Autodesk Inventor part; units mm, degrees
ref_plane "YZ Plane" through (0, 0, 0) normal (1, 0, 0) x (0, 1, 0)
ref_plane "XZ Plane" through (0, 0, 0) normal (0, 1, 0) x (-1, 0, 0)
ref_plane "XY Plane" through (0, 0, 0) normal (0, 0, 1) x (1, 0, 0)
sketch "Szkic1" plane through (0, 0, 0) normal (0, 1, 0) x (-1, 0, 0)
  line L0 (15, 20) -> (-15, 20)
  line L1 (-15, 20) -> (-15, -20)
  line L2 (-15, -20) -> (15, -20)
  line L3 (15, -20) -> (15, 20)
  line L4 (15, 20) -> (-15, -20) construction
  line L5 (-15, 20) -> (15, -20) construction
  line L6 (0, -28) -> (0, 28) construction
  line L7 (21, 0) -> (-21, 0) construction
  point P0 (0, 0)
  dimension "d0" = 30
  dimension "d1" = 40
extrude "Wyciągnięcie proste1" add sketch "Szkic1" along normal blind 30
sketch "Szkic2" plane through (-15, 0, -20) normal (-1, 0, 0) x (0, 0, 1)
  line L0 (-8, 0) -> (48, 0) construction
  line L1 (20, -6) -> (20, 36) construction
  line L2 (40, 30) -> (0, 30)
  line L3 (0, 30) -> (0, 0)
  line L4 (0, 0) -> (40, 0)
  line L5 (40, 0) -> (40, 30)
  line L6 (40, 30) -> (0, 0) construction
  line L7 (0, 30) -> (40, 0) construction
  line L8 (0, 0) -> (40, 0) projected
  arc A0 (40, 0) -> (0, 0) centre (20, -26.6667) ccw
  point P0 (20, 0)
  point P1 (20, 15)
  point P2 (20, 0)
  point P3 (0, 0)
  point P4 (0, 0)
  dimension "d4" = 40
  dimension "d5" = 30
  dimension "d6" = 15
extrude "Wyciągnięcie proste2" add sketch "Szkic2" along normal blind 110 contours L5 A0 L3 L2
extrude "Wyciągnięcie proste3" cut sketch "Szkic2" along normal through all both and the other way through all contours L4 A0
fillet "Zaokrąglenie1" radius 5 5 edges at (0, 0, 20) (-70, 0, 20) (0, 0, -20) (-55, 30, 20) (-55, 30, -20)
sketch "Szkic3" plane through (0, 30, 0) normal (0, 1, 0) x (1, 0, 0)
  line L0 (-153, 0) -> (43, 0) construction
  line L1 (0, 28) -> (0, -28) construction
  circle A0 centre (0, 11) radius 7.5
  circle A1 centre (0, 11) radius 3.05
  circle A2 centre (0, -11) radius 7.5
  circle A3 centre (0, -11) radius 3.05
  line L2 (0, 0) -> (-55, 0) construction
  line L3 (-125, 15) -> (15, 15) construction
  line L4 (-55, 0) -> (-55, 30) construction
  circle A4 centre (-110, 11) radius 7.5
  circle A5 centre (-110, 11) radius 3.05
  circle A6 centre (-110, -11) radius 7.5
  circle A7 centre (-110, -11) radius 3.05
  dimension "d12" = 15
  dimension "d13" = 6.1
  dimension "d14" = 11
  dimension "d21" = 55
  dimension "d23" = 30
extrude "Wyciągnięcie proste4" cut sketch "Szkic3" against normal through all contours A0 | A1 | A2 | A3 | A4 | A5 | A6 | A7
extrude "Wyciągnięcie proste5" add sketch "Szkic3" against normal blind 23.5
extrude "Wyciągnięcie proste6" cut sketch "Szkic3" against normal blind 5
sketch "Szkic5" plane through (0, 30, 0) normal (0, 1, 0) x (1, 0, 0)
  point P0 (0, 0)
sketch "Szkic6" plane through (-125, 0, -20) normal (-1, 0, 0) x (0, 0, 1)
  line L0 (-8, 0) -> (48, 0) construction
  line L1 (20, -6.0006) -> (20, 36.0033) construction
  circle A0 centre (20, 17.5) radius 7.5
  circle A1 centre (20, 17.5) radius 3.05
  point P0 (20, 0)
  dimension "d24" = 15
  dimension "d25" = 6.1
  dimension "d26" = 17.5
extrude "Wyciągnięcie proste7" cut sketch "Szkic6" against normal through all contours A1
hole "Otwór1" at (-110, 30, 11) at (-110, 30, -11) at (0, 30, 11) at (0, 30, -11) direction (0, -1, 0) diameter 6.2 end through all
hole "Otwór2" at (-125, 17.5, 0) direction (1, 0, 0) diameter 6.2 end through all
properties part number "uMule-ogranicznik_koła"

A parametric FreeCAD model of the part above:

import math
import FreeCAD as App
import Part
import Sketcher

V = App.Vector
Q = App.Units.Quantity


def edges_at(feature, points):
    """Names of the edges that pass closest to the given points."""
    edges = feature.Shape.Edges
    near = lambda p: min(range(len(edges)), key=lambda i: edges[i].distToShape(Part.Vertex(*p))[0])
    return sorted({f"Edge{near(p) + 1}" for p in points})


def add_polygon(sketch, points):
    """Adds a closed chain of lines whose ends are joined by coincident constraints."""
    first, n = sketch.GeometryCount, len(points)
    for a, b in zip(points, points[1:] + points[:1]):
        sketch.addGeometry(Part.LineSegment(App.Vector(*a, 0), App.Vector(*b, 0)), False)
    for i in range(n):
        sketch.addConstraint(Sketcher.Constraint("Coincident", first + i, 2, first + (i + 1) % n, 1))

doc = App.newDocument("Part")
params = doc.addObject("Spreadsheet::Sheet", "Params")
for row, (alias, value) in enumerate([
    ("sketch1_width", "30 mm"),
    ("sketch1_height", "40 mm"),
    ("pad1_length", "30 mm"),
    ("sketch2_width", "30 mm"),
    ("sketch2_height", "40 mm"),
    ("pad2_length", "110 mm"),
    ("sketch3_height", "40 mm"),
    ("fillet_radius", "5 mm"),
    ("sketch4_diameter", "15 mm"),
    ("sketch5_diameter", "15 mm"),
    ("sketch5_diameter2", "6.1 mm"),
    ("pad3_length", "23.5 mm"),
    ("sketch6_diameter", "15 mm"),
    ("sketch6_diameter2", "6.1 mm"),
    ("pocket3_length", "5 mm"),
    ("sketch7_diameter", "6.1 mm"),
    ("sketch8_diameter", "6.2 mm"),
    ("hole_diameter", "6.2 mm"),
    ("sketch9_diameter", "6.2 mm"),
    ("hole2_diameter", "6.2 mm"),
], start=1):
    params.set(f"A{row}", alias)
    params.set(f"B{row}", "=" + value)
    params.setAlias(f"B{row}", alias)

body = doc.addObject("PartDesign::Body", "Body")

sketch1 = body.newObject("Sketcher::SketchObject", "Sketch")
sketch1.AttachmentSupport = (doc.getObject("XZ_Plane"), [""])
sketch1.MapMode = "FlatFace"
add_polygon(sketch1, [(-15, -20), (-15, 20), (15, 20), (15, -20)])
sketch1.addConstraint(Sketcher.Constraint("Vertical", 0))
sketch1.addConstraint(Sketcher.Constraint("Horizontal", 1))
sketch1.addConstraint(Sketcher.Constraint("Vertical", 2))
sketch1.addConstraint(Sketcher.Constraint("Horizontal", 3))
sketch1.addConstraint(Sketcher.Constraint("Symmetric", 0, 2, 2, 2, -1, 1))
sketch1.addConstraint(Sketcher.Constraint("DistanceX", 1, 1, 1, 2, Q("30 mm")))
sketch1.addConstraint(Sketcher.Constraint("DistanceY", 0, 1, 0, 2, Q("40 mm")))
sketch1.setExpression("Constraints[9]", "Params.sketch1_width")
sketch1.setExpression("Constraints[10]", "Params.sketch1_height")
pad1 = body.newObject("PartDesign::Pad", "Pad")
pad1.Profile = sketch1
pad1.setExpression("Length", "Params.pad1_length")
pad1.Reversed = True

sketch2 = body.newObject("Sketcher::SketchObject", "Sketch001")
sketch2.AttachmentSupport = (doc.getObject("YZ_Plane"), [""])
sketch2.MapMode = "FlatFace"
sketch2.AttachmentOffset = App.Placement(V(0, 0, -15), App.Rotation())
sketch2.addGeometry(Part.LineSegment(V(0, 20, 0), V(30, 20, 0)), False)
sketch2.addGeometry(Part.LineSegment(V(30, 20, 0), V(30, -20, 0)), False)
sketch2.addGeometry(Part.LineSegment(V(30, -20, 0), V(0, -20, 0)), False)
sketch2.addGeometry(Part.ArcOfCircle(Part.Circle(V(-27, 0, 0), V(0, 0, 1), 33), math.radians(-37), math.radians(37)), False)
sketch2.addConstraint(Sketcher.Constraint("Coincident", 0, 2, 1, 1))
sketch2.addConstraint(Sketcher.Constraint("Coincident", 1, 2, 2, 1))
sketch2.addConstraint(Sketcher.Constraint("Coincident", 2, 2, 3, 1))
sketch2.addConstraint(Sketcher.Constraint("Coincident", 3, 2, 0, 1))
sketch2.addConstraint(Sketcher.Constraint("Horizontal", 0))
sketch2.addConstraint(Sketcher.Constraint("Vertical", 1))
sketch2.addConstraint(Sketcher.Constraint("Horizontal", 2))
sketch2.addConstraint(Sketcher.Constraint("Symmetric", 2, 2, 3, 2, -1, 1))
sketch2.addConstraint(Sketcher.Constraint("PointOnObject", 3, 3, -1))
sketch2.addConstraint(Sketcher.Constraint("DistanceX", 0, 1, 0, 2, Q("30 mm")))
sketch2.addConstraint(Sketcher.Constraint("DistanceY", 1, 2, 1, 1, Q("40 mm")))
sketch2.addConstraint(Sketcher.Constraint("Radius", 3, Q("33.3334 mm")))
sketch2.setExpression("Constraints[9]", "Params.sketch2_width")
sketch2.setExpression("Constraints[10]", "Params.sketch2_height")
pad2 = body.newObject("PartDesign::Pad", "Pad001")
pad2.Profile = sketch2
pad2.setExpression("Length", "Params.pad2_length")
pad2.Reversed = True

sketch3 = body.newObject("Sketcher::SketchObject", "Sketch002")
sketch3.AttachmentSupport = (doc.getObject("YZ_Plane"), [""])
sketch3.MapMode = "FlatFace"
sketch3.AttachmentOffset = App.Placement(V(0, 0, -15), App.Rotation())
sketch3.addGeometry(Part.LineSegment(V(0, -20, 0), V(0, 20, 0)), False)
sketch3.addGeometry(Part.ArcOfCircle(Part.Circle(V(-27, 0, 0), V(0, 0, 1), 33), math.radians(-37), math.radians(37)), False)
sketch3.addConstraint(Sketcher.Constraint("Coincident", 0, 1, 1, 1))
sketch3.addConstraint(Sketcher.Constraint("Coincident", 1, 2, 0, 2))
sketch3.addConstraint(Sketcher.Constraint("Vertical", 0))
sketch3.addConstraint(Sketcher.Constraint("Symmetric", 0, 1, 1, 2, -1, 1))
sketch3.addConstraint(Sketcher.Constraint("DistanceY", 0, 1, 0, 2, Q("40 mm")))
sketch3.addConstraint(Sketcher.Constraint("Radius", 1, Q("33.3334 mm")))
sketch3.setExpression("Constraints[4]", "Params.sketch3_height")
pocket1 = body.newObject("PartDesign::Pocket", "Pocket")
pocket1.Profile = sketch3
pocket1.Type = "ThroughAll"
pocket1.Midplane = True
doc.recompute()

fillet = body.newObject("PartDesign::Fillet", "Fillet")
fillet.Base = (pocket1, edges_at(pocket1, [
    (0, 0, 20),
    (-70, 0, 20),
    (0, 0, -20),
    (-55, 30, 20),
    (-55, 30, -20),
]))
fillet.setExpression("Radius", "Params.fillet_radius")

sketch4 = body.newObject("Sketcher::SketchObject", "Sketch003")
sketch4.AttachmentSupport = (doc.getObject("XZ_Plane"), [""])
sketch4.MapMode = "FlatFace"
sketch4.AttachmentOffset = App.Placement(V(0, 0, -30), App.Rotation())
sketch4.addGeometry(Part.Circle(V(0, -11, 0), V(0, 0, 1), 8), False)
sketch4.addGeometry(Part.Circle(V(0, 11, 0), V(0, 0, 1), 8), False)
sketch4.addGeometry(Part.Circle(V(-110, -11, 0), V(0, 0, 1), 8), False)
sketch4.addGeometry(Part.Circle(V(-110, 11, 0), V(0, 0, 1), 8), False)
sketch4.addConstraint(Sketcher.Constraint("Equal", 0, 1))
sketch4.addConstraint(Sketcher.Constraint("Equal", 1, 2))
sketch4.addConstraint(Sketcher.Constraint("Equal", 2, 3))
sketch4.addConstraint(Sketcher.Constraint("Symmetric", 0, 3, 1, 3, -1, 1))
sketch4.addConstraint(Sketcher.Constraint("Symmetric", 2, 3, 3, 3, -1))
sketch4.addConstraint(Sketcher.Constraint("PointOnObject", 0, 3, -2))
sketch4.addConstraint(Sketcher.Constraint("Horizontal", 0, 3, 2, 3))
sketch4.addConstraint(Sketcher.Constraint("Diameter", 0, Q("15 mm")))
sketch4.addConstraint(Sketcher.Constraint("DistanceY", 0, 3, -1, 1, Q("11 mm")))
sketch4.addConstraint(Sketcher.Constraint("DistanceX", 2, 3, -1, 1, Q("110 mm")))
sketch4.setExpression("Constraints[7]", "Params.sketch4_diameter")
pocket2 = body.newObject("PartDesign::Pocket", "Pocket001")
pocket2.Profile = sketch4
pocket2.Type = "ThroughAll"
pocket2.Reversed = True

sketch5 = body.newObject("Sketcher::SketchObject", "Sketch004")
sketch5.AttachmentSupport = (doc.getObject("XZ_Plane"), [""])
sketch5.MapMode = "FlatFace"
sketch5.AttachmentOffset = App.Placement(V(0, 0, -30), App.Rotation())
sketch5.addGeometry(Part.Circle(V(0, -11, 0), V(0, 0, 1), 7.5), False)
sketch5.addGeometry(Part.Circle(V(0, -11, 0), V(0, 0, 1), 3), False)
sketch5.addGeometry(Part.Circle(V(0, 11, 0), V(0, 0, 1), 7.5), False)
sketch5.addGeometry(Part.Circle(V(0, 11, 0), V(0, 0, 1), 3), False)
sketch5.addGeometry(Part.Circle(V(-110, -11, 0), V(0, 0, 1), 7.5), False)
sketch5.addGeometry(Part.Circle(V(-110, -11, 0), V(0, 0, 1), 3), False)
sketch5.addGeometry(Part.Circle(V(-110, 11, 0), V(0, 0, 1), 7.5), False)
sketch5.addGeometry(Part.Circle(V(-110, 11, 0), V(0, 0, 1), 3), False)
sketch5.addConstraint(Sketcher.Constraint("Coincident", 1, 3, 0, 3))
sketch5.addConstraint(Sketcher.Constraint("Coincident", 3, 3, 2, 3))
sketch5.addConstraint(Sketcher.Constraint("Coincident", 5, 3, 4, 3))
sketch5.addConstraint(Sketcher.Constraint("Coincident", 7, 3, 6, 3))
sketch5.addConstraint(Sketcher.Constraint("Equal", 0, 2))
sketch5.addConstraint(Sketcher.Constraint("Equal", 1, 3))
sketch5.addConstraint(Sketcher.Constraint("Equal", 2, 4))
sketch5.addConstraint(Sketcher.Constraint("Equal", 3, 5))
sketch5.addConstraint(Sketcher.Constraint("Equal", 4, 6))
sketch5.addConstraint(Sketcher.Constraint("Equal", 5, 7))
sketch5.addConstraint(Sketcher.Constraint("Symmetric", 0, 3, 2, 3, -1, 1))
sketch5.addConstraint(Sketcher.Constraint("Symmetric", 4, 3, 6, 3, -1))
sketch5.addConstraint(Sketcher.Constraint("PointOnObject", 0, 3, -2))
sketch5.addConstraint(Sketcher.Constraint("Horizontal", 1, 3, 4, 3))
sketch5.addConstraint(Sketcher.Constraint("Diameter", 0, Q("15 mm")))
sketch5.addConstraint(Sketcher.Constraint("Diameter", 1, Q("6.1 mm")))
sketch5.addConstraint(Sketcher.Constraint("DistanceY", 0, 3, -1, 1, Q("11 mm")))
sketch5.addConstraint(Sketcher.Constraint("DistanceX", 4, 3, -1, 1, Q("110 mm")))
sketch5.setExpression("Constraints[14]", "Params.sketch5_diameter")
sketch5.setExpression("Constraints[15]", "Params.sketch5_diameter2")
pad3 = body.newObject("PartDesign::Pad", "Pad002")
pad3.Profile = sketch5
pad3.setExpression("Length", "Params.pad3_length")

sketch6 = body.newObject("Sketcher::SketchObject", "Sketch005")
sketch6.AttachmentSupport = (doc.getObject("XZ_Plane"), [""])
sketch6.MapMode = "FlatFace"
sketch6.AttachmentOffset = App.Placement(V(0, 0, -30), App.Rotation())
sketch6.addGeometry(Part.Circle(V(0, -11, 0), V(0, 0, 1), 7.5), False)
sketch6.addGeometry(Part.Circle(V(0, -11, 0), V(0, 0, 1), 3), False)
sketch6.addGeometry(Part.Circle(V(0, 11, 0), V(0, 0, 1), 7.5), False)
sketch6.addGeometry(Part.Circle(V(0, 11, 0), V(0, 0, 1), 3), False)
sketch6.addGeometry(Part.Circle(V(-110, -11, 0), V(0, 0, 1), 7.5), False)
sketch6.addGeometry(Part.Circle(V(-110, -11, 0), V(0, 0, 1), 3), False)
sketch6.addGeometry(Part.Circle(V(-110, 11, 0), V(0, 0, 1), 7.5), False)
sketch6.addGeometry(Part.Circle(V(-110, 11, 0), V(0, 0, 1), 3), False)
sketch6.addConstraint(Sketcher.Constraint("Coincident", 1, 3, 0, 3))
sketch6.addConstraint(Sketcher.Constraint("Coincident", 3, 3, 2, 3))
sketch6.addConstraint(Sketcher.Constraint("Coincident", 5, 3, 4, 3))
sketch6.addConstraint(Sketcher.Constraint("Coincident", 7, 3, 6, 3))
sketch6.addConstraint(Sketcher.Constraint("Equal", 0, 2))
sketch6.addConstraint(Sketcher.Constraint("Equal", 1, 3))
sketch6.addConstraint(Sketcher.Constraint("Equal", 2, 4))
sketch6.addConstraint(Sketcher.Constraint("Equal", 3, 5))
sketch6.addConstraint(Sketcher.Constraint("Equal", 4, 6))
sketch6.addConstraint(Sketcher.Constraint("Equal", 5, 7))
sketch6.addConstraint(Sketcher.Constraint("Symmetric", 0, 3, 2, 3, -1, 1))
sketch6.addConstraint(Sketcher.Constraint("Symmetric", 4, 3, 6, 3, -1))
sketch6.addConstraint(Sketcher.Constraint("PointOnObject", 0, 3, -2))
sketch6.addConstraint(Sketcher.Constraint("Horizontal", 1, 3, 4, 3))
sketch6.addConstraint(Sketcher.Constraint("Diameter", 0, Q("15 mm")))
sketch6.addConstraint(Sketcher.Constraint("Diameter", 1, Q("6.1 mm")))
sketch6.addConstraint(Sketcher.Constraint("DistanceY", 0, 3, -1, 1, Q("11 mm")))
sketch6.addConstraint(Sketcher.Constraint("DistanceX", 4, 3, -1, 1, Q("110 mm")))
sketch6.setExpression("Constraints[14]", "Params.sketch6_diameter")
sketch6.setExpression("Constraints[15]", "Params.sketch6_diameter2")
pocket3 = body.newObject("PartDesign::Pocket", "Pocket002")
pocket3.Profile = sketch6
pocket3.setExpression("Length", "Params.pocket3_length")
pocket3.Reversed = True

sketch7 = body.newObject("Sketcher::SketchObject", "Sketch006")
sketch7.AttachmentSupport = (doc.getObject("YZ_Plane"), [""])
sketch7.MapMode = "FlatFace"
sketch7.AttachmentOffset = App.Placement(V(0, 0, -125), App.Rotation())
sketch7.addGeometry(Part.Circle(V(17.5, 0, 0), V(0, 0, 1), 3), False)
sketch7.addConstraint(Sketcher.Constraint("PointOnObject", 0, 3, -1))
sketch7.addConstraint(Sketcher.Constraint("Diameter", 0, Q("6.1 mm")))
sketch7.addConstraint(Sketcher.Constraint("DistanceX", -1, 1, 0, 3, Q("17.5 mm")))
sketch7.setExpression("Constraints[1]", "Params.sketch7_diameter")
pocket4 = body.newObject("PartDesign::Pocket", "Pocket003")
pocket4.Profile = sketch7
pocket4.Type = "ThroughAll"
pocket4.Reversed = True

sketch8 = body.newObject("Sketcher::SketchObject", "Sketch007")
sketch8.AttachmentSupport = (doc.getObject("XZ_Plane"), [""])
sketch8.MapMode = "FlatFace"
sketch8.AttachmentOffset = App.Placement(V(0, 0, -30), App.Rotation())
sketch8.addGeometry(Part.Circle(V(-110, 11, 0), V(0, 0, 1), 3.1), False)
sketch8.addGeometry(Part.Circle(V(-110, -11, 0), V(0, 0, 1), 3.1), False)
sketch8.addGeometry(Part.Circle(V(0, 11, 0), V(0, 0, 1), 3.1), False)
sketch8.addGeometry(Part.Circle(V(0, -11, 0), V(0, 0, 1), 3.1), False)
sketch8.addConstraint(Sketcher.Constraint("Equal", 0, 1))
sketch8.addConstraint(Sketcher.Constraint("Equal", 1, 2))
sketch8.addConstraint(Sketcher.Constraint("Equal", 2, 3))
sketch8.addConstraint(Sketcher.Constraint("Symmetric", 2, 3, 3, 3, -1, 1))
sketch8.addConstraint(Sketcher.Constraint("Symmetric", 0, 3, 1, 3, -1))
sketch8.addConstraint(Sketcher.Constraint("PointOnObject", 2, 3, -2))
sketch8.addConstraint(Sketcher.Constraint("Horizontal", 0, 3, 2, 3))
sketch8.addConstraint(Sketcher.Constraint("Diameter", 0, Q("6.2 mm")))
sketch8.addConstraint(Sketcher.Constraint("DistanceX", 0, 3, -1, 1, Q("110 mm")))
sketch8.addConstraint(Sketcher.Constraint("DistanceY", -1, 1, 0, 3, Q("11 mm")))
sketch8.setExpression("Constraints[7]", "Params.sketch8_diameter")
doc.recompute()
hole = body.newObject("PartDesign::Hole", "Hole")
hole.Profile = sketch8
hole.ThreadType = "None"
hole.setExpression("Diameter", "Params.hole_diameter")
hole.DepthType = "ThroughAll"
hole.Reversed = True

sketch9 = body.newObject("Sketcher::SketchObject", "Sketch008")
sketch9.AttachmentSupport = (doc.getObject("YZ_Plane"), [""])
sketch9.MapMode = "FlatFace"
sketch9.AttachmentOffset = App.Placement(V(0, 0, -125), App.Rotation())
sketch9.addGeometry(Part.Circle(V(17.5, 0, 0), V(0, 0, 1), 3.1), False)
sketch9.addConstraint(Sketcher.Constraint("PointOnObject", 0, 3, -1))
sketch9.addConstraint(Sketcher.Constraint("Diameter", 0, Q("6.2 mm")))
sketch9.addConstraint(Sketcher.Constraint("DistanceX", -1, 1, 0, 3, Q("17.5 mm")))
sketch9.setExpression("Constraints[1]", "Params.sketch9_diameter")
doc.recompute()
hole2 = body.newObject("PartDesign::Hole", "Hole001")
hole2.Profile = sketch9
hole2.ThreadType = "None"
hole2.setExpression("Diameter", "Params.hole2_diameter")
hole2.DepthType = "ThroughAll"
hole2.Reversed = True

doc.recompute()
